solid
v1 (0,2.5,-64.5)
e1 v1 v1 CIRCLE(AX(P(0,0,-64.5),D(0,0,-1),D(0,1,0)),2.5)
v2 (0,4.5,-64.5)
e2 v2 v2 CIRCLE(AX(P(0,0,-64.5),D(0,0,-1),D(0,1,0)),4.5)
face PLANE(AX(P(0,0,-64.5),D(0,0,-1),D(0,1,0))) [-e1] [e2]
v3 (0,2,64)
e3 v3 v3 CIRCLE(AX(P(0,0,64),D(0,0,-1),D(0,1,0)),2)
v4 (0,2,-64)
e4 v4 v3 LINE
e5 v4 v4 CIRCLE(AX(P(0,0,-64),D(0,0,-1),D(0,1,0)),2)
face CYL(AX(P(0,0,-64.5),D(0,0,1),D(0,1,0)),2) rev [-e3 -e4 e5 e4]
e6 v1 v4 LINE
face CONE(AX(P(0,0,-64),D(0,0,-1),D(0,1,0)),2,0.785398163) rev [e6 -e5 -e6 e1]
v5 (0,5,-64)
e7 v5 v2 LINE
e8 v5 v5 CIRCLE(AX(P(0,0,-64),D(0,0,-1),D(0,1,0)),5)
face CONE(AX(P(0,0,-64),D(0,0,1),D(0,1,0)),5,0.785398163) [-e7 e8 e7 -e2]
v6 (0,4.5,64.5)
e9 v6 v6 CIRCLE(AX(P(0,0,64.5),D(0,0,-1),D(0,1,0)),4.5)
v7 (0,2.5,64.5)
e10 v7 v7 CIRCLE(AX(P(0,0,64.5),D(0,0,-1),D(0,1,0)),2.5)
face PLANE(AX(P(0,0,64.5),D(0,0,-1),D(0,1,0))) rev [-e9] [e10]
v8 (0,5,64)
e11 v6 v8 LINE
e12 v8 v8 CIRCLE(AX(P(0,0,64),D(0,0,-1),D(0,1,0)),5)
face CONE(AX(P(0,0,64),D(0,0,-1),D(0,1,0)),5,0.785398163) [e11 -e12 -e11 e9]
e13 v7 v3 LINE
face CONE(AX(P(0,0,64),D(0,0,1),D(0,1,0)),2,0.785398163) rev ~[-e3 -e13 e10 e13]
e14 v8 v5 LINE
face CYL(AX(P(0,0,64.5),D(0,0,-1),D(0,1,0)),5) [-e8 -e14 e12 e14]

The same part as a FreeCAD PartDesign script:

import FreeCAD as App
import Part
import Sketcher
from FreeCAD import Vector


def edges_at(feature, points):
    """Names of the edges that pass closest to the given points."""
    edges = feature.Shape.Edges
    near = lambda p: min(range(len(edges)), key=lambda i: edges[i].distToShape(Part.Vertex(*p))[0])
    return sorted({f"Edge{near(p) + 1}" for p in points})

doc = App.newDocument("Part")
body = doc.addObject("PartDesign::Body", "Body")

# Sketch on YZ plane
sketch1 = body.newObject("Sketcher::SketchObject", "Sketch")
sketch1.AttachmentSupport = (doc.getObject("YZ_Plane"), [""])
sketch1.MapMode = "FlatFace"
sketch1.addGeometry([
    Part.LineSegment(Vector(5, 64.5, 0), Vector(2, 64.5, 0)),
    Part.LineSegment(Vector(2, 64.5, 0), Vector(2, -64.5, 0)),
    Part.LineSegment(Vector(2, -64.5, 0), Vector(5, -64.5, 0)),
    Part.LineSegment(Vector(5, -64.5, 0), Vector(5, 64.5, 0)),
], False)
sketch1.addConstraint([
    Sketcher.Constraint("Coincident", 0, 2, 1, 1),
    Sketcher.Constraint("Coincident", 1, 2, 2, 1),
    Sketcher.Constraint("Coincident", 2, 2, 3, 1),
    Sketcher.Constraint("Coincident", 3, 2, 0, 1),
    Sketcher.Constraint("Horizontal", 0),
    Sketcher.Constraint("Vertical", 1),
    Sketcher.Constraint("Horizontal", 2),
    Sketcher.Constraint("Vertical", 3),
    Sketcher.Constraint("DistanceX", 0, 2, 0, 1, 3.0),
    Sketcher.Constraint("DistanceY", 1, 2, 1, 1, 129.0),
    Sketcher.Constraint("DistanceX", -1, 1, 0, 2, 2.0),
    Sketcher.Constraint("DistanceY", -1, 1, 0, 2, 64.5),
])
revolution = body.newObject("PartDesign::Revolution", "Revolution")
revolution.Profile = sketch1
revolution.ReferenceAxis = (sketch1, ["V_Axis"])
revolution.Angle = 360
doc.recompute()

chamfer = body.newObject("PartDesign::Chamfer", "Chamfer")
chamfer.Base = (revolution, edges_at(revolution, [
    (0, -2, 64.5),
    (0, -5, 64.5),
    (0, -5, -64.5),
    (0, -2, -64.5),
]))
chamfer.Size = 0.5

doc.recompute()
